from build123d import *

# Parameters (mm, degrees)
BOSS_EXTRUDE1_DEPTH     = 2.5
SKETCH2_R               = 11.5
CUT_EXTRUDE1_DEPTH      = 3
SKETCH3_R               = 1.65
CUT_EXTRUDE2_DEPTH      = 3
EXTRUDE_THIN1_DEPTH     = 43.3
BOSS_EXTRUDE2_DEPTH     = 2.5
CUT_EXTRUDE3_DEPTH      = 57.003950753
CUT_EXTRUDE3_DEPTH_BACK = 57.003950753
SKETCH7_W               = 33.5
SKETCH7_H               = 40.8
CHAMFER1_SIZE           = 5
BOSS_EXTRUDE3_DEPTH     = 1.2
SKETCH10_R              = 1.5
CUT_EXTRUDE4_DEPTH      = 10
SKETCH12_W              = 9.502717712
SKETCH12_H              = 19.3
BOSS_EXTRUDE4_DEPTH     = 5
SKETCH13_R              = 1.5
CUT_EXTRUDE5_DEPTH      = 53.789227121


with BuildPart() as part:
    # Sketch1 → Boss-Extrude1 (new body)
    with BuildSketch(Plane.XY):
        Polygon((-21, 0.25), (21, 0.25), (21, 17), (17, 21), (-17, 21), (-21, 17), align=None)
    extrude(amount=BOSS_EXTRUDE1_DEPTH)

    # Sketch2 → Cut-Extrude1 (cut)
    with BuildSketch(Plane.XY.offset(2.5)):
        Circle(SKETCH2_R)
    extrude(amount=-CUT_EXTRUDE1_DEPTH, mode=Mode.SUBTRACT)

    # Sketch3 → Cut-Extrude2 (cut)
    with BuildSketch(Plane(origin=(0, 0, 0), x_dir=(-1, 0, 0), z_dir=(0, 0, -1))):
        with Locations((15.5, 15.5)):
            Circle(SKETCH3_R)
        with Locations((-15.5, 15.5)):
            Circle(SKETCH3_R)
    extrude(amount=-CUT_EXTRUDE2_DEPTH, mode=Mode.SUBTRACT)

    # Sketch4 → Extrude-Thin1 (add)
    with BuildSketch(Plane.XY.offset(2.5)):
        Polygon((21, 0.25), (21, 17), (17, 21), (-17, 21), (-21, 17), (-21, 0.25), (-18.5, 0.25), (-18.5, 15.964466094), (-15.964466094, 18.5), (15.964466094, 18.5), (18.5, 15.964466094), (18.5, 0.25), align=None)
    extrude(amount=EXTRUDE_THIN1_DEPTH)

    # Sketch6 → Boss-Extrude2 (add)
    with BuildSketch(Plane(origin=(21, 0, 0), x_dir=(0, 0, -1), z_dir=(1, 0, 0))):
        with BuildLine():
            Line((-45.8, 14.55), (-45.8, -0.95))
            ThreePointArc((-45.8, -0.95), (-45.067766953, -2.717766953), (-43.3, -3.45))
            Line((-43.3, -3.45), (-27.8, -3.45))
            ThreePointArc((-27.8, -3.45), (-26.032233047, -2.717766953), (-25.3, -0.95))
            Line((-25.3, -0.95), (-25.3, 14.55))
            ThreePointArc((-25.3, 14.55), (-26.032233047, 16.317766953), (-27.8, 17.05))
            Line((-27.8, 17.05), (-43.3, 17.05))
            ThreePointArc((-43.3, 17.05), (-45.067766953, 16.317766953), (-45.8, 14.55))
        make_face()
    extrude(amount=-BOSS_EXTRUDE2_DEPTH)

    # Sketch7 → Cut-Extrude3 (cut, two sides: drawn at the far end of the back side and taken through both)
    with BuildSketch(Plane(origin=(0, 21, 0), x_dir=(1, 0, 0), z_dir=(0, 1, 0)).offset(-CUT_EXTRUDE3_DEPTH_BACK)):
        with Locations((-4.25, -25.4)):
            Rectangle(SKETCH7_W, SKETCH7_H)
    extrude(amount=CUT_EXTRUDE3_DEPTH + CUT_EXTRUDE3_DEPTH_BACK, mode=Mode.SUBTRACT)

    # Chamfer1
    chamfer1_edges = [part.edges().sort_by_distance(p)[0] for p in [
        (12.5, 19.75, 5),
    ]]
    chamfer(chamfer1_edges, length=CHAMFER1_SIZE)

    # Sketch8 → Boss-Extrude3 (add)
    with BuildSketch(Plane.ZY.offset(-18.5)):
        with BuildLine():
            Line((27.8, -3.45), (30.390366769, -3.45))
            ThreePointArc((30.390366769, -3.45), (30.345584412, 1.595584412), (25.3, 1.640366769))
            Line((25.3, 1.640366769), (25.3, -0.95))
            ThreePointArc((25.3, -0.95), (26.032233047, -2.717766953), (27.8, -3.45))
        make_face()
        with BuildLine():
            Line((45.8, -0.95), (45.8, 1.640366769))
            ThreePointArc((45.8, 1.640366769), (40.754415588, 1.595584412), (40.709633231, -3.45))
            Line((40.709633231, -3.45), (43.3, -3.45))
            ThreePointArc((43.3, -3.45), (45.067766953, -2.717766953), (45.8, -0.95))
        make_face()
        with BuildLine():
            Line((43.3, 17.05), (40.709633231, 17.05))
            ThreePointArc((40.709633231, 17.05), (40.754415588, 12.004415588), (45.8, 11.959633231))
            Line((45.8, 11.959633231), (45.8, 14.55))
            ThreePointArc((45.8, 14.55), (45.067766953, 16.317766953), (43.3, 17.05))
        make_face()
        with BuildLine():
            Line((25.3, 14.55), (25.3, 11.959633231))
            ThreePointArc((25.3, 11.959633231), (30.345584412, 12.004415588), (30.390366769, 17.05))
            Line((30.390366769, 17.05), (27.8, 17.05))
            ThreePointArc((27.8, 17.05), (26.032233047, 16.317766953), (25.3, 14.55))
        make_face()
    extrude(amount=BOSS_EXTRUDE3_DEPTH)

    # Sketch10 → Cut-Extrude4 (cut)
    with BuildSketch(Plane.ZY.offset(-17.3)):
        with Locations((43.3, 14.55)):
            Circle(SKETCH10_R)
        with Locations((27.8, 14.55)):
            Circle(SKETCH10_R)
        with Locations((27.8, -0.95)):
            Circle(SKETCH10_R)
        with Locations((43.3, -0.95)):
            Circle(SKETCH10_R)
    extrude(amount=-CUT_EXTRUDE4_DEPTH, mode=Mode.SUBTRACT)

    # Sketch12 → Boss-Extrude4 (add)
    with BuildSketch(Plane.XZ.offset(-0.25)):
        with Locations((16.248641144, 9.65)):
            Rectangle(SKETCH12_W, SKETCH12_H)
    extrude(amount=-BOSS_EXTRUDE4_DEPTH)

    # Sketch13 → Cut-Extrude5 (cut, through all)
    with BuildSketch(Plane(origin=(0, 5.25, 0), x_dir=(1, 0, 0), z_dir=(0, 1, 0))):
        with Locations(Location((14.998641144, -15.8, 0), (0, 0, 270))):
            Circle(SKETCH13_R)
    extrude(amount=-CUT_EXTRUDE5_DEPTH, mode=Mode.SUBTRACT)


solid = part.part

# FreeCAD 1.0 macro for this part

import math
import FreeCAD as App
import Part
import Sketcher
from FreeCAD import Vector
Q = App.Units.Quantity


def edges_at(feature, points):
    """Names of the edges that pass closest to the given points."""
    edges = feature.Shape.Edges
    near = lambda p: min(range(len(edges)), key=lambda i: edges[i].distToShape(Part.Vertex(*p))[0])
    return sorted({f"Edge{near(p) + 1}" for p in points})


def add_polygon(sketch, points):
    """Adds a closed chain of lines whose ends are joined by coincident constraints."""
    first, n = sketch.GeometryCount, len(points)
    for a, b in zip(points, points[1:] + points[:1]):
        sketch.addGeometry(Part.LineSegment(App.Vector(*a, 0), App.Vector(*b, 0)), False)
    for i in range(n):
        sketch.addConstraint(Sketcher.Constraint("Coincident", first + i, 2, first + (i + 1) % n, 1))

doc = App.newDocument("Part")
params = doc.addObject("Spreadsheet::Sheet", "Params")
for row, (alias, value) in enumerate([
    ("sketch1_width", "42 mm"),
    ("sketch1_width2", "34 mm"),
    ("sketch1_height", "16.75 mm"),
    ("pad1_length", "2.5 mm"),
    ("sketch2_diameter", "23 mm"),
    ("pocket1_length", "3 mm"),
    ("sketch3_diameter", "3.3 mm"),
    ("pocket2_length", "3 mm"),
    ("sketch4_width", "34 mm"),
    ("sketch4_width2", "2.5 mm"),
    ("sketch4_height", "16.75 mm"),
    ("pad2_length", "43.3 mm"),
    ("sketch5_radius", "2.5 mm"),
    ("sketch5_width", "15.5 mm"),
    ("pad3_length", "2.5 mm"),
    ("sketch6_width", "33.5 mm"),
    ("sketch6_height", "40.8 mm"),
    ("chamfer_size", "5 mm"),
    ("sketch7_radius", "3.6 mm"),
    ("sketch7_radius2", "2.5 mm"),
    ("pad4_length", "1.2 mm"),
    ("sketch8_diameter", "3 mm"),
    ("pocket4_length", "10 mm"),
    ("sketch9_height", "19.3 mm"),
    ("pad5_length", "5 mm"),
    ("sketch10_diameter", "3 mm"),
], start=1):
    params.set(f"A{row}", alias)
    params.set(f"B{row}", "=" + value)
    params.setAlias(f"B{row}", alias)

body = doc.addObject("PartDesign::Body", "Body")

# Sketch on XY plane
sketch1 = body.newObject("Sketcher::SketchObject", "Sketch")
sketch1.AttachmentSupport = (doc.getObject("XY_Plane"), [""])
sketch1.MapMode = "FlatFace"
add_polygon(sketch1, [(-21, 0), (21, 0), (21, 17), (17, 21), (-17, 21), (-21, 17)])  # lines 0-5
sketch1.addConstraint(Sketcher.Constraint("Horizontal", 0))
sketch1.addConstraint(Sketcher.Constraint("Vertical", 1))
sketch1.addConstraint(Sketcher.Constraint("Horizontal", 3))
sketch1.addConstraint(Sketcher.Constraint("Vertical", 5))
sketch1.addConstraint(Sketcher.Constraint("Symmetric", 1, 2, 4, 2, -2))
sketch1.addConstraint(Sketcher.Constraint("Perpendicular", 2, 4))
sketch1.addConstraint(Sketcher.Constraint("Equal", 2, 4))
sketch1.addConstraint(Sketcher.Constraint("DistanceX", 0, 1, 0, 2, Q("42 mm")))
sketch1.addConstraint(Sketcher.Constraint("DistanceX", 3, 2, 3, 1, Q("34 mm")))
sketch1.addConstraint(Sketcher.Constraint("DistanceY", -1, 1, 1, 2, Q("17 mm")))
sketch1.addConstraint(Sketcher.Constraint("DistanceY", 1, 1, 1, 2, Q("16.75 mm")))
sketch1.setExpression("Constraints[13]", "Params.sketch1_width")
sketch1.setExpression("Constraints[14]", "Params.sketch1_width2")
sketch1.setExpression("Constraints[16]", "Params.sketch1_height")
pad1 = body.newObject("PartDesign::Pad", "Pad")
pad1.Profile = sketch1
pad1.setExpression("Length", "Params.pad1_length")

# Sketch on XY plane
sketch2 = body.newObject("Sketcher::SketchObject", "Sketch001")
sketch2.AttachmentSupport = (doc.getObject("XY_Plane"), [""])
sketch2.MapMode = "FlatFace"
sketch2.AttachmentOffset = App.Placement(Vector(0, 0, 2.5), App.Rotation())
sketch2.addGeometry(Part.Circle(Vector(0, 0, 0), Vector(0, 0, 1), 12), False)
sketch2.addConstraint(Sketcher.Constraint("Coincident", 0, 3, -1, 1))
sketch2.addConstraint(Sketcher.Constraint("Diameter", 0, Q("23 mm")))
sketch2.setExpression("Constraints[1]", "Params.sketch2_diameter")
pocket1 = body.newObject("PartDesign::Pocket", "Pocket")
pocket1.Profile = sketch2
pocket1.setExpression("Length", "Params.pocket1_length")

# Sketch on XY plane
sketch3 = body.newObject("Sketcher::SketchObject", "Sketch002")
sketch3.AttachmentSupport = (doc.getObject("XY_Plane"), [""])
sketch3.MapMode = "FlatFace"
sketch3.addGeometry(Part.Circle(Vector(-15.5, 15.5, 0), Vector(0, 0, 1), 1.6), False)
sketch3.addGeometry(Part.Circle(Vector(15.5, 15.5, 0), Vector(0, 0, 1), 1.6), False)
sketch3.addConstraint(Sketcher.Constraint("Equal", 0, 1))
sketch3.addConstraint(Sketcher.Constraint("Symmetric", 0, 3, 1, 3, -2))
sketch3.addConstraint(Sketcher.Constraint("Diameter", 0, Q("3.3 mm")))
sketch3.addConstraint(Sketcher.Constraint("DistanceX", 0, 3, 1, 3, Q("31 mm")))
sketch3.addConstraint(Sketcher.Constraint("DistanceY", -1, 1, 0, 3, Q("15.5 mm")))
sketch3.setExpression("Constraints[2]", "Params.sketch3_diameter")
pocket2 = body.newObject("PartDesign::Pocket", "Pocket001")
pocket2.Profile = sketch3
pocket2.setExpression("Length", "Params.pocket2_length")
pocket2.Reversed = True

# Sketch on XY plane
sketch4 = body.newObject("Sketcher::SketchObject", "Sketch003")
sketch4.AttachmentSupport = (doc.getObject("XY_Plane"), [""])
sketch4.MapMode = "FlatFace"
sketch4.AttachmentOffset = App.Placement(Vector(0, 0, 2.5), App.Rotation())
add_polygon(sketch4, [(21, 0.2), (21, 17), (17, 21), (-17, 21), (-21, 17), (-21, 0.2), (-18.5, 0.2), (-18.5, 16), (-16, 18.5), (16, 18.5), (18.5, 16), (18.5, 0.2)])  # lines 0-11
sketch4.addConstraint(Sketcher.Constraint("Vertical", 0))
sketch4.addConstraint(Sketcher.Constraint("Horizontal", 2))
sketch4.addConstraint(Sketcher.Constraint("Vertical", 4))
sketch4.addConstraint(Sketcher.Constraint("Horizontal", 5))
sketch4.addConstraint(Sketcher.Constraint("Vertical", 6))
sketch4.addConstraint(Sketcher.Constraint("Horizontal", 8))
sketch4.addConstraint(Sketcher.Constraint("Vertical", 10))
sketch4.addConstraint(Sketcher.Constraint("Horizontal", 11))
sketch4.addConstraint(Sketcher.Constraint("Symmetric", 0, 2, 3, 2, -2))
sketch4.addConstraint(Sketcher.Constraint("Symmetric", 6, 2, 9, 2, -2))
sketch4.addConstraint(Sketcher.Constraint("Perpendicular", 1, 3))
sketch4.addConstraint(Sketcher.Constraint("Parallel", 3, 7))
sketch4.addConstraint(Sketcher.Constraint("Perpendicular", 7, 9))
sketch4.addConstraint(Sketcher.Constraint("Horizontal", 5, 2, 10, 2))
sketch4.addConstraint(Sketcher.Constraint("Equal", 1, 3))
sketch4.addConstraint(Sketcher.Constraint("DistanceX", 2, 2, 2, 1, Q("34 mm")))
sketch4.addConstraint(Sketcher.Constraint("DistanceX", 5, 1, 5, 2, Q("2.5 mm")))
sketch4.addConstraint(Sketcher.Constraint("DistanceX", -1, 1, 0, 2, Q("21 mm")))
sketch4.addConstraint(Sketcher.Constraint("DistanceY", -1, 1, 0, 2, Q("17 mm")))
sketch4.addConstraint(Sketcher.Constraint("DistanceY", 0, 1, 0, 2, Q("16.75 mm")))
sketch4.addConstraint(Sketcher.Constraint("DistanceY", -1, 1, 7, 2, Q("18.5 mm")))
sketch4.addConstraint(Sketcher.Constraint("DistanceX", 8, 1, 8, 2, Q("31.928932 mm")))
sketch4.setExpression("Constraints[27]", "Params.sketch4_width")
sketch4.setExpression("Constraints[28]", "Params.sketch4_width2")
sketch4.setExpression("Constraints[31]", "Params.sketch4_height")
pad2 = body.newObject("PartDesign::Pad", "Pad001")
pad2.Profile = sketch4
pad2.setExpression("Length", "Params.pad2_length")

# Sketch on YZ plane
sketch5 = body.newObject("Sketcher::SketchObject", "Sketch004")
sketch5.AttachmentSupport = (doc.getObject("YZ_Plane"), [""])
sketch5.MapMode = "FlatFace"
sketch5.AttachmentOffset = App.Placement(Vector(0, 0, 21), App.Rotation())
sketch5.addGeometry(Part.LineSegment(Vector(14.6, 45.8, 0), Vector(-0.9, 45.8, 0)), False)
sketch5.addGeometry(Part.ArcOfCircle(Part.Circle(Vector(-0.9, 43.3, 0), Vector(0, 0, 1), 2.5), math.radians(90), math.radians(180)), False)
sketch5.addGeometry(Part.LineSegment(Vector(-3.5, 43.3, 0), Vector(-3.5, 27.8, 0)), False)
sketch5.addGeometry(Part.ArcOfCircle(Part.Circle(Vector(-0.9, 27.8, 0), Vector(0, 0, 1), 2.5), math.radians(180), math.radians(270)), False)
sketch5.addGeometry(Part.LineSegment(Vector(-0.9, 25.3, 0), Vector(14.6, 25.3, 0)), False)
sketch5.addGeometry(Part.ArcOfCircle(Part.Circle(Vector(14.6, 27.8, 0), Vector(0, 0, 1), 2.5), math.radians(-90), math.radians(0)), False)
sketch5.addGeometry(Part.LineSegment(Vector(17.1, 27.8, 0), Vector(17.1, 43.3, 0)), False)
sketch5.addGeometry(Part.ArcOfCircle(Part.Circle(Vector(14.6, 43.3, 0), Vector(0, 0, 1), 2.5), math.radians(0), math.radians(90)), False)
sketch5.addConstraint(Sketcher.Constraint("Tangent", 0, 2, 1, 1))
sketch5.addConstraint(Sketcher.Constraint("Tangent", 1, 2, 2, 1))
sketch5.addConstraint(Sketcher.Constraint("Tangent", 2, 2, 3, 1))
sketch5.addConstraint(Sketcher.Constraint("Tangent", 3, 2, 4, 1))
sketch5.addConstraint(Sketcher.Constraint("Tangent", 4, 2, 5, 1))
sketch5.addConstraint(Sketcher.Constraint("Tangent", 5, 2, 6, 1))
sketch5.addConstraint(Sketcher.Constraint("Tangent", 6, 2, 7, 1))
sketch5.addConstraint(Sketcher.Constraint("Tangent", 7, 2, 0, 1))
sketch5.addConstraint(Sketcher.Constraint("Horizontal", 0))
sketch5.addConstraint(Sketcher.Constraint("Vertical", 2))
sketch5.addConstraint(Sketcher.Constraint("Horizontal", 4))
sketch5.addConstraint(Sketcher.Constraint("Vertical", 6))
sketch5.addConstraint(Sketcher.Constraint("Equal", 1, 3))
sketch5.addConstraint(Sketcher.Constraint("Equal", 3, 5))
sketch5.addConstraint(Sketcher.Constraint("Equal", 5, 7))
sketch5.addConstraint(Sketcher.Constraint("Equal", 4, 2))
sketch5.addConstraint(Sketcher.Constraint("Radius", 1, Q("2.5 mm")))
sketch5.addConstraint(Sketcher.Constraint("DistanceX", 0, 2, 0, 1, Q("15.5 mm")))
sketch5.addConstraint(Sketcher.Constraint("DistanceY", -1, 1, 1, 3, Q("43.3 mm")))
sketch5.addConstraint(Sketcher.Constraint("DistanceX", 1, 3, -1, 1, Q("0.95 mm")))
sketch5.setExpression("Constraints[16]", "Params.sketch5_radius")
sketch5.setExpression("Constraints[17]", "Params.sketch5_width")
pad3 = body.newObject("PartDesign::Pad", "Pad002")
pad3.Profile = sketch5
pad3.setExpression("Length", "Params.pad3_length")
pad3.Reversed = True

# Sketch on XZ plane
sketch6 = body.newObject("Sketcher::SketchObject", "Sketch005")
sketch6.AttachmentSupport = (doc.getObject("XZ_Plane"), [""])
sketch6.MapMode = "FlatFace"
sketch6.AttachmentOffset = App.Placement(Vector(0, 0, -21), App.Rotation())
add_polygon(sketch6, [(-21, 5), (-21, 46), (12, 46), (12, 5)])  # lines 0-3
sketch6.addConstraint(Sketcher.Constraint("Vertical", 0))
sketch6.addConstraint(Sketcher.Constraint("Horizontal", 1))
sketch6.addConstraint(Sketcher.Constraint("Vertical", 2))
sketch6.addConstraint(Sketcher.Constraint("Horizontal", 3))
sketch6.addConstraint(Sketcher.Constraint("DistanceX", 1, 1, 1, 2, Q("33.5 mm")))
sketch6.addConstraint(Sketcher.Constraint("DistanceY", 0, 1, 0, 2, Q("40.8 mm")))
sketch6.addConstraint(Sketcher.Constraint("DistanceX", 0, 2, -1, 1, Q("21 mm")))
sketch6.addConstraint(Sketcher.Constraint("DistanceY", -1, 1, 2, 2, Q("5 mm")))
sketch6.setExpression("Constraints[8]", "Params.sketch6_width")
sketch6.setExpression("Constraints[9]", "Params.sketch6_height")
pocket3 = body.newObject("PartDesign::Pocket", "Pocket002")
pocket3.Profile = sketch6
pocket3.Type = "ThroughAll"
pocket3.Midplane = True
doc.recompute()

chamfer = body.newObject("PartDesign::Chamfer", "Chamfer")
chamfer.Base = (pocket3, edges_at(pocket3, [(12.5, 19.75, 5)]))
chamfer.setExpression("Size", "Params.chamfer_size")

# Sketch on YZ plane
sketch7 = body.newObject("Sketcher::SketchObject", "Sketch006")
sketch7.AttachmentSupport = (doc.getObject("YZ_Plane"), [""])
sketch7.MapMode = "FlatFace"
sketch7.AttachmentOffset = App.Placement(Vector(0, 0, 18.5), App.Rotation())
sketch7.addGeometry(Part.LineSegment(Vector(-3.5, 27.8, 0), Vector(-3.5, 30.4, 0)), False)
sketch7.addGeometry(Part.ArcOfCircle(Part.Circle(Vector(-0.9, 27.8, 0), Vector(0, 0, 1), 3.6), math.radians(-44), math.radians(134)), False)
sketch7.addGeometry(Part.LineSegment(Vector(1.6, 25.3, 0), Vector(-0.9, 25.3, 0)), False)
sketch7.addGeometry(Part.ArcOfCircle(Part.Circle(Vector(-0.9, 27.8, 0), Vector(0, 0, 1), 2.5), math.radians(180), math.radians(270)), False)
sketch7.addGeometry(Part.LineSegment(Vector(-0.9, 45.8, 0), Vector(1.6, 45.8, 0)), False)
sketch7.addGeometry(Part.ArcOfCircle(Part.Circle(Vector(-0.9, 43.3, 0), Vector(0, 0, 1), 3.6), math.radians(-134), math.radians(44)), False)
sketch7.addGeometry(Part.LineSegment(Vector(-3.5, 40.7, 0), Vector(-3.5, 43.3, 0)), False)
sketch7.addGeometry(Part.ArcOfCircle(Part.Circle(Vector(-0.9, 43.3, 0), Vector(0, 0, 1), 2.5), math.radians(90), math.radians(180)), False)
sketch7.addGeometry(Part.LineSegment(Vector(17.1, 43.3, 0), Vector(17.1, 40.7, 0)), False)
sketch7.addGeometry(Part.ArcOfCircle(Part.Circle(Vector(14.6, 43.3, 0), Vector(0, 0, 1), 3.6), math.radians(136), math.radians(314)), False)
sketch7.addGeometry(Part.LineSegment(Vector(12, 45.8, 0), Vector(14.6, 45.8, 0)), False)
sketch7.addGeometry(Part.ArcOfCircle(Part.Circle(Vector(14.6, 43.3, 0), Vector(0, 0, 1), 2.5), math.radians(0), math.radians(90)), False)
sketch7.addGeometry(Part.LineSegment(Vector(14.6, 25.3, 0), Vector(12, 25.3, 0)), False)
sketch7.addGeometry(Part.ArcOfCircle(Part.Circle(Vector(14.6, 27.8, 0), Vector(0, 0, 1), 3.6), math.radians(46), math.radians(224)), False)
sketch7.addGeometry(Part.LineSegment(Vector(17.1, 30.4, 0), Vector(17.1, 27.8, 0)), False)
sketch7.addGeometry(Part.ArcOfCircle(Part.Circle(Vector(14.6, 27.8, 0), Vector(0, 0, 1), 2.5), math.radians(-90), math.radians(0)), False)
sketch7.addConstraint(Sketcher.Constraint("Coincident", 0, 2, 1, 2))
sketch7.addConstraint(Sketcher.Constraint("Coincident", 1, 1, 2, 1))
sketch7.addConstraint(Sketcher.Constraint("Tangent", 2, 2, 3, 2))
sketch7.addConstraint(Sketcher.Constraint("Tangent", 3, 1, 0, 1))
sketch7.addConstraint(Sketcher.Constraint("Coincident", 4, 2, 5, 2))
sketch7.addConstraint(Sketcher.Constraint("Coincident", 5, 1, 6, 1))
sketch7.addConstraint(Sketcher.Constraint("Tangent", 6, 2, 7, 2))
sketch7.addConstraint(Sketcher.Constraint("Tangent", 7, 1, 4, 1))
sketch7.addConstraint(Sketcher.Constraint("Coincident", 8, 2, 9, 2))
sketch7.addConstraint(Sketcher.Constraint("Coincident", 9, 1, 10, 1))
sketch7.addConstraint(Sketcher.Constraint("Tangent", 10, 2, 11, 2))
sketch7.addConstraint(Sketcher.Constraint("Tangent", 11, 1, 8, 1))
sketch7.addConstraint(Sketcher.Constraint("Coincident", 12, 2, 13, 2))
sketch7.addConstraint(Sketcher.Constraint("Coincident", 13, 1, 14, 1))
sketch7.addConstraint(Sketcher.Constraint("Tangent", 14, 2, 15, 2))
sketch7.addConstraint(Sketcher.Constraint("Tangent", 15, 1, 12, 1))
sketch7.addConstraint(Sketcher.Constraint("Vertical", 0))
sketch7.addConstraint(Sketcher.Constraint("Horizontal", 2))
sketch7.addConstraint(Sketcher.Constraint("Horizontal", 4))
sketch7.addConstraint(Sketcher.Constraint("Vertical", 6))
sketch7.addConstraint(Sketcher.Constraint("Vertical", 8))
sketch7.addConstraint(Sketcher.Constraint("Horizontal", 10))
sketch7.addConstraint(Sketcher.Constraint("Horizontal", 12))
sketch7.addConstraint(Sketcher.Constraint("Vertical", 14))
sketch7.addConstraint(Sketcher.Constraint("Coincident", 3, 3, 1, 3))
sketch7.addConstraint(Sketcher.Constraint("Coincident", 7, 3, 5, 3))
sketch7.addConstraint(Sketcher.Constraint("Coincident", 11, 3, 9, 3))
sketch7.addConstraint(Sketcher.Constraint("Coincident", 15, 3, 13, 3))
sketch7.addConstraint(Sketcher.Constraint("Equal", 1, 5))
sketch7.addConstraint(Sketcher.Constraint("Equal", 3, 7))
sketch7.addConstraint(Sketcher.Constraint("Equal", 5, 9))
sketch7.addConstraint(Sketcher.Constraint("Equal", 7, 11))
sketch7.addConstraint(Sketcher.Constraint("Equal", 9, 13))
sketch7.addConstraint(Sketcher.Constraint("Equal", 11, 15))
sketch7.addConstraint(Sketcher.Constraint("Horizontal", 7, 3, 9, 3))
sketch7.addConstraint(Sketcher.Constraint("Horizontal", 3, 3, 13, 3))
sketch7.addConstraint(Sketcher.Constraint("Vertical", 3, 3, 5, 3))
sketch7.addConstraint(Sketcher.Constraint("Vertical", 11, 3, 13, 3))
sketch7.addConstraint(Sketcher.Constraint("Radius", 1, Q("3.6 mm")))
sketch7.addConstraint(Sketcher.Constraint("Radius", 3, Q("2.5 mm")))
sketch7.addConstraint(Sketcher.Constraint("DistanceX", 0, 2, 13, 3, Q("18 mm")))
sketch7.addConstraint(Sketcher.Constraint("DistanceY", -1, 1, 1, 3, Q("27.8 mm")))
sketch7.addConstraint(Sketcher.Constraint("DistanceY", -1, 1, 5, 3, Q("43.3 mm")))
sketch7.addConstraint(Sketcher.Constraint("DistanceX", 1, 3, -1, 1, Q("0.95 mm")))
sketch7.setExpression("Constraints[38]", "Params.sketch7_radius")
sketch7.setExpression("Constraints[39]", "Params.sketch7_radius2")
pad4 = body.newObject("PartDesign::Pad", "Pad003")
pad4.Profile = sketch7
pad4.setExpression("Length", "Params.pad4_length")
pad4.Reversed = True

# Sketch on YZ plane
sketch8 = body.newObject("Sketcher::SketchObject", "Sketch007")
sketch8.AttachmentSupport = (doc.getObject("YZ_Plane"), [""])
sketch8.MapMode = "FlatFace"
sketch8.AttachmentOffset = App.Placement(Vector(0, 0, 17.3), App.Rotation())
sketch8.addGeometry(Part.Circle(Vector(14.6, 43.3, 0), Vector(0, 0, 1), 1.5), False)
sketch8.addGeometry(Part.Circle(Vector(14.6, 27.8, 0), Vector(0, 0, 1), 1.5), False)
sketch8.addGeometry(Part.Circle(Vector(-0.9, 27.8, 0), Vector(0, 0, 1), 1.5), False)
sketch8.addGeometry(Part.Circle(Vector(-0.9, 43.3, 0), Vector(0, 0, 1), 1.5), False)
sketch8.addConstraint(Sketcher.Constraint("Equal", 0, 1))
sketch8.addConstraint(Sketcher.Constraint("Equal", 1, 2))
sketch8.addConstraint(Sketcher.Constraint("Equal", 2, 3))
sketch8.addConstraint(Sketcher.Constraint("Horizontal", 1, 3, 2, 3))
sketch8.addConstraint(Sketcher.Constraint("Horizontal", 0, 3, 3, 3))
sketch8.addConstraint(Sketcher.Constraint("Vertical", 0, 3, 1, 3))
sketch8.addConstraint(Sketcher.Constraint("Vertical", 2, 3, 3, 3))
sketch8.addConstraint(Sketcher.Constraint("Diameter", 0, Q("3 mm")))
sketch8.addConstraint(Sketcher.Constraint("DistanceY", -1, 1, 0, 3, Q("43.3 mm")))
sketch8.addConstraint(Sketcher.Constraint("DistanceY", -1, 1, 1, 3, Q("27.8 mm")))
sketch8.addConstraint(Sketcher.Constraint("DistanceX", 2, 3, 1, 3, Q("15.5 mm")))
sketch8.addConstraint(Sketcher.Constraint("DistanceX", -1, 1, 0, 3, Q("14.55 mm")))
sketch8.setExpression("Constraints[7]", "Params.sketch8_diameter")
pocket4 = body.newObject("PartDesign::Pocket", "Pocket003")
pocket4.Profile = sketch8
pocket4.setExpression("Length", "Params.pocket4_length")
pocket4.Reversed = True

# Sketch on XZ plane
sketch9 = body.newObject("Sketcher::SketchObject", "Sketch008")
sketch9.AttachmentSupport = (doc.getObject("XZ_Plane"), [""])
sketch9.MapMode = "FlatFace"
sketch9.AttachmentOffset = App.Placement(Vector(0, 0, -0.25), App.Rotation())
add_polygon(sketch9, [(11, 19), (11, 0), (21, 0), (21, 19)])  # lines 0-3
sketch9.addConstraint(Sketcher.Constraint("Vertical", 0))
sketch9.addConstraint(Sketcher.Constraint("Horizontal", 1))
sketch9.addConstraint(Sketcher.Constraint("Vertical", 2))
sketch9.addConstraint(Sketcher.Constraint("Horizontal", 3))
sketch9.addConstraint(Sketcher.Constraint("PointOnObject", 0, 2, -1))
sketch9.addConstraint(Sketcher.Constraint("DistanceY", 0, 2, 0, 1, Q("19.3 mm")))
sketch9.addConstraint(Sketcher.Constraint("DistanceX", -1, 1, 1, 2, Q("21 mm")))
sketch9.addConstraint(Sketcher.Constraint("DistanceX", 1, 1, 1, 2, Q("9.502718 mm")))
sketch9.setExpression("Constraints[9]", "Params.sketch9_height")
pad5 = body.newObject("PartDesign::Pad", "Pad004")
pad5.Profile = sketch9
pad5.setExpression("Length", "Params.pad5_length")
pad5.Reversed = True

# Sketch on XZ plane
sketch10 = body.newObject("Sketcher::SketchObject", "Sketch009")
sketch10.AttachmentSupport = (doc.getObject("XZ_Plane"), [""])
sketch10.MapMode = "FlatFace"
sketch10.AttachmentOffset = App.Placement(Vector(0, 0, -5.25), App.Rotation())
sketch10.addGeometry(Part.Circle(Vector(15, 15.8, 0), Vector(0, 0, 1), 1.5), False)
sketch10.addConstraint(Sketcher.Constraint("Diameter", 0, Q("3 mm")))
sketch10.addConstraint(Sketcher.Constraint("DistanceY", -1, 1, 0, 3, Q("15.8 mm")))
sketch10.addConstraint(Sketcher.Constraint("DistanceX", -1, 1, 0, 3, Q("14.998641 mm")))
sketch10.setExpression("Constraints[0]", "Params.sketch10_diameter")
pocket5 = body.newObject("PartDesign::Pocket", "Pocket004")
pocket5.Profile = sketch10
pocket5.Type = "ThroughAll"
pocket5.Reversed = True

doc.recompute()
